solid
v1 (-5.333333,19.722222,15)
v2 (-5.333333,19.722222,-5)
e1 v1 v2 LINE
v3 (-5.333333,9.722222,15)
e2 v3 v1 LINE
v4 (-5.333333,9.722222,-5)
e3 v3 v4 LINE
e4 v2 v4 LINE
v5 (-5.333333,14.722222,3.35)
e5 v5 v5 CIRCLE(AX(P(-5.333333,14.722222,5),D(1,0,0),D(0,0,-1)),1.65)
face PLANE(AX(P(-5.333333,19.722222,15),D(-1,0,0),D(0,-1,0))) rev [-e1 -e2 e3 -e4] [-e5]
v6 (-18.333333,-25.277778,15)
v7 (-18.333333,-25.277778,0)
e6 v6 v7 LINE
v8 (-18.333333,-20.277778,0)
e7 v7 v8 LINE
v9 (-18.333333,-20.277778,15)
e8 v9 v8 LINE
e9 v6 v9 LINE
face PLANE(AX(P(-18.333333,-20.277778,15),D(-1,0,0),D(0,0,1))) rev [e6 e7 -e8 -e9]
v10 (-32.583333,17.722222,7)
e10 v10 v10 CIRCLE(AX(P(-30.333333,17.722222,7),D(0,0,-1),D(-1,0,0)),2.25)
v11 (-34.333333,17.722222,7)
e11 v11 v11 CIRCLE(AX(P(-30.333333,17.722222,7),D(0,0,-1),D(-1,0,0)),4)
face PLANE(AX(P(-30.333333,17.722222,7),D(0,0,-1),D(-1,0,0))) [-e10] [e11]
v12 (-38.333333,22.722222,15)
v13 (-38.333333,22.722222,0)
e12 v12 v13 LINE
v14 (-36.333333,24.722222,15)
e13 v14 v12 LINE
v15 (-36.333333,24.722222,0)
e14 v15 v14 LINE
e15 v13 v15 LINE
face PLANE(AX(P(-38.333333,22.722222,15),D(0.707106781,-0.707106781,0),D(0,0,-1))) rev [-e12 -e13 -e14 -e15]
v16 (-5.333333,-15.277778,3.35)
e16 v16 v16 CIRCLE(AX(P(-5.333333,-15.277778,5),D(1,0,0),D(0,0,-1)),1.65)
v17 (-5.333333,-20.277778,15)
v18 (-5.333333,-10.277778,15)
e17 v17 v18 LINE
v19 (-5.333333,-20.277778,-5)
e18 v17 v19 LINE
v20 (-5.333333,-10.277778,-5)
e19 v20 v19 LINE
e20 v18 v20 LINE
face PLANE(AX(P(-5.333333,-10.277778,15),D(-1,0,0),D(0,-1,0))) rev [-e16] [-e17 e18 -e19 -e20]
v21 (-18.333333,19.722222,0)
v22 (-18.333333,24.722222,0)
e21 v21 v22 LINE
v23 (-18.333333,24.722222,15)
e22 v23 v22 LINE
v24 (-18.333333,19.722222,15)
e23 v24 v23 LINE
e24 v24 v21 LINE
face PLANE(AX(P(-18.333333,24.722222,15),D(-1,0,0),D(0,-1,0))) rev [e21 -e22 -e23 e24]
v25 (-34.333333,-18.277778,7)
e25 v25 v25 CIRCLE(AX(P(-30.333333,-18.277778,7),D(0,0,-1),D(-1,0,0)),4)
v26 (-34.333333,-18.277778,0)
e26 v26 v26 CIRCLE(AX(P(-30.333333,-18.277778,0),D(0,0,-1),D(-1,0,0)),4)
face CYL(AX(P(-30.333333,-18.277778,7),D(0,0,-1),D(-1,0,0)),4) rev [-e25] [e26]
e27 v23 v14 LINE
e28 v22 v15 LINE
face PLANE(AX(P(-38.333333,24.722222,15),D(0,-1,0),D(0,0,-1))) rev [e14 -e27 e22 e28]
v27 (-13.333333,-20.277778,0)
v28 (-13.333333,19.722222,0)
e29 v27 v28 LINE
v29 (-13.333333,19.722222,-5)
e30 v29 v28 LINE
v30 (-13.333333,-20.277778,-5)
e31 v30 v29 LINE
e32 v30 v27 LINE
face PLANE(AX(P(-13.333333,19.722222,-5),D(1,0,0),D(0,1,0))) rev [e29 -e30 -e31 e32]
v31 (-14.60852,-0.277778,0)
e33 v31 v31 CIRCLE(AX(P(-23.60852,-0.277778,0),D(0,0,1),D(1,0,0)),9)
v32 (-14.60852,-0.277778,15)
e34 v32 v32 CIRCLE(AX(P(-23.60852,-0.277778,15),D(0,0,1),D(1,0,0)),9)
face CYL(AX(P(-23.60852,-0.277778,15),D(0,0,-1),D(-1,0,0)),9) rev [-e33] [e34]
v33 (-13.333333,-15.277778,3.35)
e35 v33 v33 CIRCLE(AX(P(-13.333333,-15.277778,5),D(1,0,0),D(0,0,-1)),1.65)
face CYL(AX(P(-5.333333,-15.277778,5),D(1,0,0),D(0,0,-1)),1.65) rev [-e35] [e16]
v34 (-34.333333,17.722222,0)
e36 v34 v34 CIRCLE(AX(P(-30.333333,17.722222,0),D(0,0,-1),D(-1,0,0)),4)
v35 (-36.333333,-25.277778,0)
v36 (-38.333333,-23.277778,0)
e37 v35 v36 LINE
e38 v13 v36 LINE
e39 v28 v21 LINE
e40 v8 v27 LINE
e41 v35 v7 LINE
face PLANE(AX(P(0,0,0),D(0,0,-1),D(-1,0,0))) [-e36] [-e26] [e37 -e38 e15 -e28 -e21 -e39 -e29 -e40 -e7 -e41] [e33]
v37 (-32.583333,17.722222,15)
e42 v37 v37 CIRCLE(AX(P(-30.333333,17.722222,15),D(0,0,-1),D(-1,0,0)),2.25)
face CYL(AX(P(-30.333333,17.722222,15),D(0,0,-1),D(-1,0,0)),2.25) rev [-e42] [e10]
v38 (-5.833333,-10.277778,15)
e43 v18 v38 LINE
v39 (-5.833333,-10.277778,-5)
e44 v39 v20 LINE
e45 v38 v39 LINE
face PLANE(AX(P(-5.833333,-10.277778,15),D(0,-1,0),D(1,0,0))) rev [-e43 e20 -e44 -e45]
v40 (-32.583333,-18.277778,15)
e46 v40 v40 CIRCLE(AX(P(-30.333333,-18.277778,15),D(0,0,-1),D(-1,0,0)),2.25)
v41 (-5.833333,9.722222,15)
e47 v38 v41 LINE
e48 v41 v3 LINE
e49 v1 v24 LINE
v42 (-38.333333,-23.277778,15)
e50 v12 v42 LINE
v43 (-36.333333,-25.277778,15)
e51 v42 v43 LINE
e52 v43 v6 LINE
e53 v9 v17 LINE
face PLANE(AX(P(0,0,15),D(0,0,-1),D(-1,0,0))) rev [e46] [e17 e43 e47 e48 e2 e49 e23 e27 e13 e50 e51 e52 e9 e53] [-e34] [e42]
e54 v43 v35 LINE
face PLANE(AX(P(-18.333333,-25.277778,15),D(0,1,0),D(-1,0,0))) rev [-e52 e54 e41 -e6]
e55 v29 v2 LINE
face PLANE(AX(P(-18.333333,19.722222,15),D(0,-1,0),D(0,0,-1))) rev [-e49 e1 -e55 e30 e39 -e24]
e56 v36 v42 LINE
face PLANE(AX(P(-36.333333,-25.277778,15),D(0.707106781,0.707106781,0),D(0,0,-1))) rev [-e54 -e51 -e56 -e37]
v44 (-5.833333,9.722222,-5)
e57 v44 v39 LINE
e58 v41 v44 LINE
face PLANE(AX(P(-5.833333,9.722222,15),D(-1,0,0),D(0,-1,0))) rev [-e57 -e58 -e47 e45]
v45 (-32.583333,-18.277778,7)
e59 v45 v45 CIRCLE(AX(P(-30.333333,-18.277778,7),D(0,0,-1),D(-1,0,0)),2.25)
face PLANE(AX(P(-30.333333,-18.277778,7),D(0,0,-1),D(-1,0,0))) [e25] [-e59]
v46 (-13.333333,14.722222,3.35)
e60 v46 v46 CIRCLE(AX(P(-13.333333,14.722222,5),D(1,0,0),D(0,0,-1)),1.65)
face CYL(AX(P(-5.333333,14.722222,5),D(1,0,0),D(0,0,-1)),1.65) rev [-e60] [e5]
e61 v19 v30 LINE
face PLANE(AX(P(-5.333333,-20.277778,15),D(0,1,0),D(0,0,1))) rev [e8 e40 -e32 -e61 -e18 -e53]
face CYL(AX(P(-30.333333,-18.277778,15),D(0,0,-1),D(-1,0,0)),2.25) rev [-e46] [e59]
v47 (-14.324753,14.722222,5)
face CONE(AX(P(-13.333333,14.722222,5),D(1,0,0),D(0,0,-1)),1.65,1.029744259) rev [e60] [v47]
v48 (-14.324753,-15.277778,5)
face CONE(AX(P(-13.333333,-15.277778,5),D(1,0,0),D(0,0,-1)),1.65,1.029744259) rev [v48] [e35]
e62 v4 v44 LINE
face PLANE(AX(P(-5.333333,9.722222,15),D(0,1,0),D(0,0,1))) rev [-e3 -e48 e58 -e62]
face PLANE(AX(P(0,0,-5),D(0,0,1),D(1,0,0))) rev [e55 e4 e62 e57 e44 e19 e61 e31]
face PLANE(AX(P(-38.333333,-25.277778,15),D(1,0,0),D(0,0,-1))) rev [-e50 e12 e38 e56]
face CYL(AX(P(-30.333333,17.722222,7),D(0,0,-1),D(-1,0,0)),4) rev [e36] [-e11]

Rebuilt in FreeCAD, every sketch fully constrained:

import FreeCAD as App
import Part
import Sketcher

V = App.Vector
Q = App.Units.Quantity


def edges_at(feature, points):
    """Names of the edges that pass closest to the given points."""
    edges = feature.Shape.Edges
    near = lambda p: min(range(len(edges)), key=lambda i: edges[i].distToShape(Part.Vertex(*p))[0])
    return sorted({f"Edge{near(p) + 1}" for p in points})


def add_polygon(sketch, points):
    """Adds a closed chain of lines whose ends are joined by coincident constraints."""
    first, n = sketch.GeometryCount, len(points)
    for a, b in zip(points, points[1:] + points[:1]):
        sketch.addGeometry(Part.LineSegment(App.Vector(*a, 0), App.Vector(*b, 0)), False)
    for i in range(n):
        sketch.addConstraint(Sketcher.Constraint("Coincident", first + i, 2, first + (i + 1) % n, 1))

doc = App.newDocument("Part")
body = doc.addObject("PartDesign::Body", "Body")

sketch1 = body.newObject("Sketcher::SketchObject", "Sketch")
sketch1.AttachmentSupport = (doc.getObject("XY_Plane"), [""])
sketch1.MapMode = "FlatFace"
add_polygon(sketch1, [(-38.333333, 24.722222), (-38.333333, -25.277778), (-18.333333, -25.277778), (-18.333333, -20.277778), (-5.333333, -20.277778), (-5.333333, -10.277778), (-5.833333, -10.277778), (-5.833333, 9.722222), (-5.333333, 9.722222), (-5.333333, 19.722222), (-18.333333, 19.722222), (-18.333333, 24.722222)])
sketch1.addGeometry(Part.Circle(V(-23.60852, -0.277778, 0), V(0, 0, 1), 9), False)
sketch1.addConstraint([
    Sketcher.Constraint("Vertical", 0),
    Sketcher.Constraint("Horizontal", 1),
    Sketcher.Constraint("Vertical", 2),
    Sketcher.Constraint("Horizontal", 3),
    Sketcher.Constraint("Vertical", 4),
    Sketcher.Constraint("Horizontal", 5),
    Sketcher.Constraint("Vertical", 6),
    Sketcher.Constraint("Horizontal", 7),
    Sketcher.Constraint("Vertical", 8),
    Sketcher.Constraint("Horizontal", 9),
    Sketcher.Constraint("Vertical", 10),
    Sketcher.Constraint("Horizontal", 11),
    Sketcher.Constraint("Vertical", 4, 2, 7, 2),
    Sketcher.Constraint("Vertical", 2, 2, 9, 2),
    Sketcher.Constraint("Equal", 11, 6),
    Sketcher.Constraint("Equal", 4, 8),
    Sketcher.Constraint("Equal", 2, 10),
    Sketcher.Constraint("Diameter", 12, Q("18 mm")),
    Sketcher.Constraint("DistanceX", 1, 1, 1, 2, Q("20 mm")),
    Sketcher.Constraint("DistanceX", 3, 1, 3, 2, Q("13 mm")),
    Sketcher.Constraint("DistanceY", 0, 2, 0, 1, Q("50 mm")),
    Sketcher.Constraint("DistanceY", 2, 1, 2, 2, Q("5 mm")),
    Sketcher.Constraint("DistanceX", 5, 2, 5, 1, Q("0.5 mm")),
    Sketcher.Constraint("DistanceY", 0, 2, 12, 3, Q("25 mm")),
    Sketcher.Constraint("DistanceX", 12, 3, -1, 1, Q("23.60852 mm")),
    Sketcher.Constraint("DistanceY", 12, 3, -1, 1, Q("0.277778 mm")),
    Sketcher.Constraint("DistanceX", 0, 2, -1, 1, Q("38.333333 mm")),
])
pad1 = body.newObject("PartDesign::Pad", "Pad")
pad1.Profile = sketch1
pad1.Length = 15

sketch2 = body.newObject("Sketcher::SketchObject", "Sketch001")
sketch2.AttachmentSupport = (doc.getObject("XY_Plane"), [""])
sketch2.MapMode = "FlatFace"
sketch2.addGeometry([
    Part.Circle(V(-30.333333, 17.722222, 0), V(0, 0, 1), 4),
    Part.Circle(V(-30.333333, -18.277778, 0), V(0, 0, 1), 4),
], False)
sketch2.addConstraint([
    Sketcher.Constraint("Equal", 0, 1),
    Sketcher.Constraint("Vertical", 0, 3, 1, 3),
    Sketcher.Constraint("Diameter", 0, Q("8 mm")),
    Sketcher.Constraint("DistanceY", 1, 3, 0, 3, Q("36 mm")),
    Sketcher.Constraint("DistanceX", 0, 3, -1, 1, Q("30.333333 mm")),
    Sketcher.Constraint("DistanceY", -1, 1, 0, 3, Q("17.722222 mm")),
])
pocket1 = body.newObject("PartDesign::Pocket", "Pocket")
pocket1.Profile = sketch2
pocket1.Length = 7
pocket1.Reversed = True

sketch3 = body.newObject("Sketcher::SketchObject", "Sketch002")
sketch3.AttachmentSupport = (doc.getObject("XY_Plane"), [""])
sketch3.MapMode = "FlatFace"
sketch3.AttachmentOffset = App.Placement(V(0, 0, 7), App.Rotation())
sketch3.addGeometry([
    Part.Circle(V(-30.333333, 17.722222, 0), V(0, 0, 1), 2.25),
    Part.Circle(V(-30.333333, -18.277778, 0), V(0, 0, 1), 2.25),
], False)
sketch3.addConstraint([
    Sketcher.Constraint("Equal", 0, 1),
    Sketcher.Constraint("Vertical", 0, 3, 1, 3),
    Sketcher.Constraint("Diameter", 0, Q("4.5 mm")),
    Sketcher.Constraint("DistanceY", 1, 3, 0, 3, Q("36 mm")),
    Sketcher.Constraint("DistanceX", 0, 3, -1, 1, Q("30.333333 mm")),
    Sketcher.Constraint("DistanceY", -1, 1, 0, 3, Q("17.722222 mm")),
])
pocket2 = body.newObject("PartDesign::Pocket", "Pocket001")
pocket2.Profile = sketch3
pocket2.Type = "ThroughAll"
pocket2.Reversed = True

sketch4 = body.newObject("Sketcher::SketchObject", "Sketch003")
sketch4.AttachmentSupport = (doc.getObject("XY_Plane"), [""])
sketch4.MapMode = "FlatFace"
add_polygon(sketch4, [(-5.333333, -20.277778), (-13.333333, -20.277778), (-13.333333, 19.722222), (-5.333333, 19.722222), (-5.333333, 9.722222), (-5.833333, 9.722222), (-5.833333, -10.277778), (-5.333333, -10.277778)])
sketch4.addConstraint([
    Sketcher.Constraint("Horizontal", 0),
    Sketcher.Constraint("Vertical", 1),
    Sketcher.Constraint("Horizontal", 2),
    Sketcher.Constraint("Vertical", 3),
    Sketcher.Constraint("Horizontal", 4),
    Sketcher.Constraint("Vertical", 5),
    Sketcher.Constraint("Horizontal", 6),
    Sketcher.Constraint("Vertical", 7),
    Sketcher.Constraint("Vertical", 3, 2, 6, 2),
    Sketcher.Constraint("Equal", 3, 7),
    Sketcher.Constraint("DistanceX", 0, 2, 0, 1, Q("8 mm")),
    Sketcher.Constraint("DistanceY", 1, 1, 1, 2, Q("40 mm")),
    Sketcher.Constraint("DistanceY", 3, 2, 3, 1, Q("10 mm")),
    Sketcher.Constraint("DistanceX", 4, 2, 4, 1, Q("0.5 mm")),
    Sketcher.Constraint("DistanceX", 0, 2, -1, 1, Q("13.333333 mm")),
    Sketcher.Constraint("DistanceY", 0, 2, -1, 1, Q("20.277778 mm")),
])
pad2 = body.newObject("PartDesign::Pad", "Pad001")
pad2.Profile = sketch4
pad2.Length = 5
pad2.Reversed = True
doc.recompute()

chamfer = body.newObject("PartDesign::Chamfer", "Chamfer")
chamfer.Base = (pad2, edges_at(pad2, [(-38.333, -25.278, 7.5), (-38.333, 24.722, 7.5)]))
chamfer.Size = 2

sketch5 = body.newObject("Sketcher::SketchObject", "Sketch004")
sketch5.AttachmentSupport = (doc.getObject("YZ_Plane"), [""])
sketch5.MapMode = "FlatFace"
sketch5.AttachmentOffset = App.Placement(V(0, 0, -5.333333), App.Rotation())
sketch5.addGeometry([
    Part.Circle(V(14.722222, 5, 0), V(0, 0, 1), 1.65),
    Part.Circle(V(-15.277778, 5, 0), V(0, 0, 1), 1.65),
], False)
sketch5.addConstraint([
    Sketcher.Constraint("Equal", 0, 1),
    Sketcher.Constraint("Horizontal", 0, 3, 1, 3),
    Sketcher.Constraint("Diameter", 0, Q("3.3 mm")),
    Sketcher.Constraint("DistanceY", -1, 1, 0, 3, Q("5 mm")),
    Sketcher.Constraint("DistanceX", 1, 3, 0, 3, Q("30 mm")),
    Sketcher.Constraint("DistanceX", -1, 1, 0, 3, Q("14.722222 mm")),
])
doc.recompute()
hole = body.newObject("PartDesign::Hole", "Hole")
hole.Profile = sketch5
hole.ThreadType = "None"
hole.Diameter = 3.3
hole.DepthType = "Dimension"
hole.Depth = 8
hole.DrillPoint = "Angled"
hole.DrillPointAngle = 118

doc.recompute()
